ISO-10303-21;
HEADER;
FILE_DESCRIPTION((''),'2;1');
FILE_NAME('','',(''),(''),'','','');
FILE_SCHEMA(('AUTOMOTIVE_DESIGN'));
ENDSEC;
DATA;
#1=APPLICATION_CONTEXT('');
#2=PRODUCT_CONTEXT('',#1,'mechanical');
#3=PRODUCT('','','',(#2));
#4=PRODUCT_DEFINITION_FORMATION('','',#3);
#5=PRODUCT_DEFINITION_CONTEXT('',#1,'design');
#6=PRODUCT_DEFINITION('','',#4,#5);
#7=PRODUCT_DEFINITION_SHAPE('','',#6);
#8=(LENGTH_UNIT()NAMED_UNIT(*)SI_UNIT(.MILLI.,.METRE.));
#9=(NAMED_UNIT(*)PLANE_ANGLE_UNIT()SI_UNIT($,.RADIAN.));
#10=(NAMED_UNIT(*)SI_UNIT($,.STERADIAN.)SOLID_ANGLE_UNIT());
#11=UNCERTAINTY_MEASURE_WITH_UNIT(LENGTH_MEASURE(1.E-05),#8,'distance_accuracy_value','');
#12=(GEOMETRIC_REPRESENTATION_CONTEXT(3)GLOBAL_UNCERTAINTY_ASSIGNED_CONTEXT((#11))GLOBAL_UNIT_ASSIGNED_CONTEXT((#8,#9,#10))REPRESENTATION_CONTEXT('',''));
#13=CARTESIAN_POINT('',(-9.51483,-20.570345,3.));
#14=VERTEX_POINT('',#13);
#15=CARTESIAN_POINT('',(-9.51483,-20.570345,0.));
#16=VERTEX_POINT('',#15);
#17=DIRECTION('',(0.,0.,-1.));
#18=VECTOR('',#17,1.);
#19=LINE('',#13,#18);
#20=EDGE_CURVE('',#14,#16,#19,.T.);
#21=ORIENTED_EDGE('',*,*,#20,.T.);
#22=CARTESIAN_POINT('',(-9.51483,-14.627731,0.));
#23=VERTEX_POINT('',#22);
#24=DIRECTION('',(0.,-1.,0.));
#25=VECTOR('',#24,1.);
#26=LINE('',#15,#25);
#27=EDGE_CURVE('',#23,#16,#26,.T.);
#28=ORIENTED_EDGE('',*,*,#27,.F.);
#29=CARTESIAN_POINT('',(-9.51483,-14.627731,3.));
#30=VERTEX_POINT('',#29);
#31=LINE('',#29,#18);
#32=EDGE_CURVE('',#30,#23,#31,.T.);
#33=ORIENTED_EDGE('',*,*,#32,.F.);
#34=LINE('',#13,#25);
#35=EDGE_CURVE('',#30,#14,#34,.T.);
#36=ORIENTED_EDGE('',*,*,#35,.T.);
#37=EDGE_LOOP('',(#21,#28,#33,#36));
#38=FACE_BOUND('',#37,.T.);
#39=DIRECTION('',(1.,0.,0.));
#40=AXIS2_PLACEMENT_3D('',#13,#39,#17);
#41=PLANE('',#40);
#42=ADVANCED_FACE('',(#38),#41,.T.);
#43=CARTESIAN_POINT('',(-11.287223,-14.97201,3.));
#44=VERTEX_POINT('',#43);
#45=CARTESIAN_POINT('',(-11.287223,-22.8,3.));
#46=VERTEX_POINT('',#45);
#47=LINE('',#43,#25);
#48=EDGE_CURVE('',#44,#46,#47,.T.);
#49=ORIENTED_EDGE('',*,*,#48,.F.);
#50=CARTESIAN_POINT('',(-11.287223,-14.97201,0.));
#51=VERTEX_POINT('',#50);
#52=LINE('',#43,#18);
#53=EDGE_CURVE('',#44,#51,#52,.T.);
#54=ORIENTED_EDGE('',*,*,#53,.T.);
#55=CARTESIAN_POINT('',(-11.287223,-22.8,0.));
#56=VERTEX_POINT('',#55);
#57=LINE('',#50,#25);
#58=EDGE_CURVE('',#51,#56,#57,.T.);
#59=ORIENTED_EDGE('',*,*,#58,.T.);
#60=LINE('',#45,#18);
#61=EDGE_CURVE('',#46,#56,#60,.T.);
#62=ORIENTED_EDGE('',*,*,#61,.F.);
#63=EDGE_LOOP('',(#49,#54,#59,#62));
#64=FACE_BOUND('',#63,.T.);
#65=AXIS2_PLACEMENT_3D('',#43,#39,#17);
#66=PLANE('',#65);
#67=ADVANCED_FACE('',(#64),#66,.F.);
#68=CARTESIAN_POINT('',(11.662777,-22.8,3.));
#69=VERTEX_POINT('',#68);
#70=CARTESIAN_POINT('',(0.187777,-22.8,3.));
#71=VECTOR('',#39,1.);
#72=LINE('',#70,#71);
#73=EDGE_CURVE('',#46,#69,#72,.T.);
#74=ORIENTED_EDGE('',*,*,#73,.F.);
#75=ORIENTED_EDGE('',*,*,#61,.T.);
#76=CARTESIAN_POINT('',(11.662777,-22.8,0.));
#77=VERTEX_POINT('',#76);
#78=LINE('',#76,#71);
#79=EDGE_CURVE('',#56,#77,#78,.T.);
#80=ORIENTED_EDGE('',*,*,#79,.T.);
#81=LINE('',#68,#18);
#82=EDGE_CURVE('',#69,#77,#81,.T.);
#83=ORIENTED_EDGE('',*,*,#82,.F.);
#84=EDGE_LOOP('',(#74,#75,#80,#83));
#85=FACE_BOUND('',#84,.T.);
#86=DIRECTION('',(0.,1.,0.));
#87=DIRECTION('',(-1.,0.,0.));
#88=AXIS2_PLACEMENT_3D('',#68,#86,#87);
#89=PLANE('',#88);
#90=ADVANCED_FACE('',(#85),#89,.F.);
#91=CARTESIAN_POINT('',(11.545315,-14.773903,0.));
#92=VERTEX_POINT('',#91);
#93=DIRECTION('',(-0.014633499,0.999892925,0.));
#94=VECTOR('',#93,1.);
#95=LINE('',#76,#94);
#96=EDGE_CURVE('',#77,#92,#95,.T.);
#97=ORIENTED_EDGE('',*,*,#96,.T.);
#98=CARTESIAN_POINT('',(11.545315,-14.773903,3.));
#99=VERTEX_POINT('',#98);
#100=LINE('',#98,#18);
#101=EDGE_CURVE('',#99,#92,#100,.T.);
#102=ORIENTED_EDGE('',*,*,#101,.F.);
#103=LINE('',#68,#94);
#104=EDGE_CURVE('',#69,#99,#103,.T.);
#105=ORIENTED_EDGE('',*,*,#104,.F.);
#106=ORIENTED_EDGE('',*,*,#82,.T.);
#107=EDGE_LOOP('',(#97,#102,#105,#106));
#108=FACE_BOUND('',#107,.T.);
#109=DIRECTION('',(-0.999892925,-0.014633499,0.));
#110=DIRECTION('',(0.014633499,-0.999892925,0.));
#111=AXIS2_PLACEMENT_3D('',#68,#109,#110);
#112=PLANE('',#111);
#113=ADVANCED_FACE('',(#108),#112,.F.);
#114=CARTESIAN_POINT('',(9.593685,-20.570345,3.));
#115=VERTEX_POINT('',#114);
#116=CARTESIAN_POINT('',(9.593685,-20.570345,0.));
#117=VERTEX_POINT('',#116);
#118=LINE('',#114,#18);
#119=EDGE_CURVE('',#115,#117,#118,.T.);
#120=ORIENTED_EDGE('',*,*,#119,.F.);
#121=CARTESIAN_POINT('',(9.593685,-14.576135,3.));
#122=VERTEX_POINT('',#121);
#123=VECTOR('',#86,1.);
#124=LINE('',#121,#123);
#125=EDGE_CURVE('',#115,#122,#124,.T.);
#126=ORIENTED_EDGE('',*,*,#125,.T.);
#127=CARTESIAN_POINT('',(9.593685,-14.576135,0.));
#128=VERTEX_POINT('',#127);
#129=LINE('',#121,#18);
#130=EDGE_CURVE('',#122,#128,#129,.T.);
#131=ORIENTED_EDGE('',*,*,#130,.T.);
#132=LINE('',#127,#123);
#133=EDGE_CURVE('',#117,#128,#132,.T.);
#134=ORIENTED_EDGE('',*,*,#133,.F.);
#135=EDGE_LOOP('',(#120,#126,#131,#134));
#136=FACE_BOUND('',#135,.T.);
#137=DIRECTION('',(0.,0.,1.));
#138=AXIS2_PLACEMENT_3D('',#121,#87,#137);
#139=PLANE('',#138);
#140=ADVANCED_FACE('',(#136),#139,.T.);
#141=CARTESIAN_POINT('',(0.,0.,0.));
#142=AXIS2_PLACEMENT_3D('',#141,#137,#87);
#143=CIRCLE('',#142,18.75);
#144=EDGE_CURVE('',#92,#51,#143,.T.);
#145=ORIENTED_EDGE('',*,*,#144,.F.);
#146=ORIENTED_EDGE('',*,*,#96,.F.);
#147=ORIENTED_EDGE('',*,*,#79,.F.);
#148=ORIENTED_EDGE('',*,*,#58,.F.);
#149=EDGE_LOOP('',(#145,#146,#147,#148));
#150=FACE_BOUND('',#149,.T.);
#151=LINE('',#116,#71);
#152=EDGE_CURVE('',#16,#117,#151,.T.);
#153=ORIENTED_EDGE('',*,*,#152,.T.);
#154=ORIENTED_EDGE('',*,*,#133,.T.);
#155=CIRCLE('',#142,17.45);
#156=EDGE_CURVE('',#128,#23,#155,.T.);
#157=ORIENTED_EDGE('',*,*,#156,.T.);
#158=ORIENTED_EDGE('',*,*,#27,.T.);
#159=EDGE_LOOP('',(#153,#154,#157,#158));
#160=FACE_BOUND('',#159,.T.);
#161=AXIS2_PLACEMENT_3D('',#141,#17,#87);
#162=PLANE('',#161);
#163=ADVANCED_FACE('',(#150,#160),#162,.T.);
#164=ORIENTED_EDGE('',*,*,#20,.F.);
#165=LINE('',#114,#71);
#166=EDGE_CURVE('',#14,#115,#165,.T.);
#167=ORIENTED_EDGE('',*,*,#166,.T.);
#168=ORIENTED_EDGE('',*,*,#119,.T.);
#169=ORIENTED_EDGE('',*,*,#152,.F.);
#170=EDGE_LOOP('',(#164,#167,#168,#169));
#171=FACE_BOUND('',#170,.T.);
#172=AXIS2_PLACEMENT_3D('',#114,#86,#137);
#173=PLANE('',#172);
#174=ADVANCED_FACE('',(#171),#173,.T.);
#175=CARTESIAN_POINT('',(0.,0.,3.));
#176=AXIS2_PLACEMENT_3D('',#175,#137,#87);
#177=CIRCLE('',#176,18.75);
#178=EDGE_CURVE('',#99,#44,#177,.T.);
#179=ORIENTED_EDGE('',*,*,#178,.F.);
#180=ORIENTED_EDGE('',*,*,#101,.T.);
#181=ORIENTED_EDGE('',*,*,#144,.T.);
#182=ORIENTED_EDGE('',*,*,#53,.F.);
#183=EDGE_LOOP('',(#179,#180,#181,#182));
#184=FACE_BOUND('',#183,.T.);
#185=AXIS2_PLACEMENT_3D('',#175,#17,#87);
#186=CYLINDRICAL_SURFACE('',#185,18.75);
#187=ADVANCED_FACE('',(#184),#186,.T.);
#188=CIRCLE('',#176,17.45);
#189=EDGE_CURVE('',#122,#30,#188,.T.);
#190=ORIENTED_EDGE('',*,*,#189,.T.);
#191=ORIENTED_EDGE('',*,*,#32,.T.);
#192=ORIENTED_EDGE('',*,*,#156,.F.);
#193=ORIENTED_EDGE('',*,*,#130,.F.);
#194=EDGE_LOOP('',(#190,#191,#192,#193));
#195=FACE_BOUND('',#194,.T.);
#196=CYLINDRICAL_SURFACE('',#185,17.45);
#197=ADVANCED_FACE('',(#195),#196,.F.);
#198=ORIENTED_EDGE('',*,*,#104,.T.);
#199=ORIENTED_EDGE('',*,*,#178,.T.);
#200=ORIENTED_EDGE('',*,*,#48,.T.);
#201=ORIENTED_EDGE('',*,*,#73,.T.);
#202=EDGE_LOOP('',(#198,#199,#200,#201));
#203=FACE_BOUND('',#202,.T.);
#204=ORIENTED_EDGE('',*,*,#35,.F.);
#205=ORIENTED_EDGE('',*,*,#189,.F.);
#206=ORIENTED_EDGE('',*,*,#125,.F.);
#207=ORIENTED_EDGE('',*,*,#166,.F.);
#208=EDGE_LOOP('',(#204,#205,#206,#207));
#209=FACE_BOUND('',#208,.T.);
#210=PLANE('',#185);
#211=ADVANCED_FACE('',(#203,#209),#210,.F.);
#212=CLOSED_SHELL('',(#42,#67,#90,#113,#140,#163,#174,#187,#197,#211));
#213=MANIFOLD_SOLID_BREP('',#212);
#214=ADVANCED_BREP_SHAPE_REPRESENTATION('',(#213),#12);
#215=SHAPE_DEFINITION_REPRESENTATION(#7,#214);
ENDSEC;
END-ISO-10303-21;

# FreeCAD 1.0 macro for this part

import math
import FreeCAD as App
import Part
import Sketcher

V = App.Vector

doc = App.newDocument("Part")
body = doc.addObject("PartDesign::Body", "Body")

sketch1 = body.newObject("Sketcher::SketchObject", "Sketch")
sketch1.AttachmentSupport = (doc.getObject("XY_Plane"), [""])
sketch1.MapMode = "FlatFace"
sketch1.addGeometry([
    Part.LineSegment(V(-11, -15, 0), V(-11, -23, 0)),
    Part.LineSegment(V(-11, -23, 0), V(12, -23, 0)),
    Part.LineSegment(V(12, -23, 0), V(12, -15, 0)),
    Part.ArcOfCircle(Part.Circle(V(0, 0, 0), V(0, 0, 1), 19), math.radians(-52), math.radians(233)),
], False)
sketch1.addConstraint([
    Sketcher.Constraint("Coincident", 0, 2, 1, 1),
    Sketcher.Constraint("Coincident", 1, 2, 2, 1),
    Sketcher.Constraint("Coincident", 2, 2, 3, 1),
    Sketcher.Constraint("Coincident", 3, 2, 0, 1),
    Sketcher.Constraint("Vertical", 0),
    Sketcher.Constraint("Horizontal", 1),
    Sketcher.Constraint("Coincident", 3, 3, -1, 1),
    Sketcher.Constraint("Radius", 3, 18.75),
    Sketcher.Constraint("DistanceX", 1, 1, 1, 2, 22.95),
    Sketcher.Constraint("DistanceY", 0, 2, -1, 1, 22.8),
    Sketcher.Constraint("DistanceY", 0, 2, 0, 1, 7.82799),
    Sketcher.Constraint("Distance", 2, 8.026956),
])
pad1 = body.newObject("PartDesign::Pad", "Pad")
pad1.Profile = sketch1
pad1.Length = 3

sketch2 = body.newObject("Sketcher::SketchObject", "Sketch001")
sketch2.AttachmentSupport = (doc.getObject("XY_Plane"), [""])
sketch2.MapMode = "FlatFace"
sketch2.addGeometry([
    Part.LineSegment(V(10, -21, 0), V(10, -15, 0)),
    Part.ArcOfCircle(Part.Circle(V(0, 0, 0), V(0, 0, 1), 17), math.radians(-57), math.radians(237)),
    Part.LineSegment(V(-10, -15, 0), V(-10, -21, 0)),
    Part.LineSegment(V(-10, -21, 0), V(10, -21, 0)),
], False)
sketch2.addConstraint([
    Sketcher.Constraint("Coincident", 0, 2, 1, 1),
    Sketcher.Constraint("Coincident", 1, 2, 2, 1),
    Sketcher.Constraint("Coincident", 2, 2, 3, 1),
    Sketcher.Constraint("Coincident", 3, 2, 0, 1),
    Sketcher.Constraint("Vertical", 0),
    Sketcher.Constraint("Vertical", 2),
    Sketcher.Constraint("Horizontal", 3),
    Sketcher.Constraint("Coincident", 1, 3, -1, 1),
    Sketcher.Constraint("Radius", 1, 17.45),
    Sketcher.Constraint("DistanceY", 0, 1, 0, 2, 5.99421),
    Sketcher.Constraint("DistanceX", 3, 1, 3, 2, 19.108516),
    Sketcher.Constraint("DistanceY", 2, 2, 2, 1, 5.942614),
])
pocket1 = body.newObject("PartDesign::Pocket", "Pocket")
pocket1.Profile = sketch2
pocket1.Length = 3
pocket1.Reversed = True

doc.recompute()
